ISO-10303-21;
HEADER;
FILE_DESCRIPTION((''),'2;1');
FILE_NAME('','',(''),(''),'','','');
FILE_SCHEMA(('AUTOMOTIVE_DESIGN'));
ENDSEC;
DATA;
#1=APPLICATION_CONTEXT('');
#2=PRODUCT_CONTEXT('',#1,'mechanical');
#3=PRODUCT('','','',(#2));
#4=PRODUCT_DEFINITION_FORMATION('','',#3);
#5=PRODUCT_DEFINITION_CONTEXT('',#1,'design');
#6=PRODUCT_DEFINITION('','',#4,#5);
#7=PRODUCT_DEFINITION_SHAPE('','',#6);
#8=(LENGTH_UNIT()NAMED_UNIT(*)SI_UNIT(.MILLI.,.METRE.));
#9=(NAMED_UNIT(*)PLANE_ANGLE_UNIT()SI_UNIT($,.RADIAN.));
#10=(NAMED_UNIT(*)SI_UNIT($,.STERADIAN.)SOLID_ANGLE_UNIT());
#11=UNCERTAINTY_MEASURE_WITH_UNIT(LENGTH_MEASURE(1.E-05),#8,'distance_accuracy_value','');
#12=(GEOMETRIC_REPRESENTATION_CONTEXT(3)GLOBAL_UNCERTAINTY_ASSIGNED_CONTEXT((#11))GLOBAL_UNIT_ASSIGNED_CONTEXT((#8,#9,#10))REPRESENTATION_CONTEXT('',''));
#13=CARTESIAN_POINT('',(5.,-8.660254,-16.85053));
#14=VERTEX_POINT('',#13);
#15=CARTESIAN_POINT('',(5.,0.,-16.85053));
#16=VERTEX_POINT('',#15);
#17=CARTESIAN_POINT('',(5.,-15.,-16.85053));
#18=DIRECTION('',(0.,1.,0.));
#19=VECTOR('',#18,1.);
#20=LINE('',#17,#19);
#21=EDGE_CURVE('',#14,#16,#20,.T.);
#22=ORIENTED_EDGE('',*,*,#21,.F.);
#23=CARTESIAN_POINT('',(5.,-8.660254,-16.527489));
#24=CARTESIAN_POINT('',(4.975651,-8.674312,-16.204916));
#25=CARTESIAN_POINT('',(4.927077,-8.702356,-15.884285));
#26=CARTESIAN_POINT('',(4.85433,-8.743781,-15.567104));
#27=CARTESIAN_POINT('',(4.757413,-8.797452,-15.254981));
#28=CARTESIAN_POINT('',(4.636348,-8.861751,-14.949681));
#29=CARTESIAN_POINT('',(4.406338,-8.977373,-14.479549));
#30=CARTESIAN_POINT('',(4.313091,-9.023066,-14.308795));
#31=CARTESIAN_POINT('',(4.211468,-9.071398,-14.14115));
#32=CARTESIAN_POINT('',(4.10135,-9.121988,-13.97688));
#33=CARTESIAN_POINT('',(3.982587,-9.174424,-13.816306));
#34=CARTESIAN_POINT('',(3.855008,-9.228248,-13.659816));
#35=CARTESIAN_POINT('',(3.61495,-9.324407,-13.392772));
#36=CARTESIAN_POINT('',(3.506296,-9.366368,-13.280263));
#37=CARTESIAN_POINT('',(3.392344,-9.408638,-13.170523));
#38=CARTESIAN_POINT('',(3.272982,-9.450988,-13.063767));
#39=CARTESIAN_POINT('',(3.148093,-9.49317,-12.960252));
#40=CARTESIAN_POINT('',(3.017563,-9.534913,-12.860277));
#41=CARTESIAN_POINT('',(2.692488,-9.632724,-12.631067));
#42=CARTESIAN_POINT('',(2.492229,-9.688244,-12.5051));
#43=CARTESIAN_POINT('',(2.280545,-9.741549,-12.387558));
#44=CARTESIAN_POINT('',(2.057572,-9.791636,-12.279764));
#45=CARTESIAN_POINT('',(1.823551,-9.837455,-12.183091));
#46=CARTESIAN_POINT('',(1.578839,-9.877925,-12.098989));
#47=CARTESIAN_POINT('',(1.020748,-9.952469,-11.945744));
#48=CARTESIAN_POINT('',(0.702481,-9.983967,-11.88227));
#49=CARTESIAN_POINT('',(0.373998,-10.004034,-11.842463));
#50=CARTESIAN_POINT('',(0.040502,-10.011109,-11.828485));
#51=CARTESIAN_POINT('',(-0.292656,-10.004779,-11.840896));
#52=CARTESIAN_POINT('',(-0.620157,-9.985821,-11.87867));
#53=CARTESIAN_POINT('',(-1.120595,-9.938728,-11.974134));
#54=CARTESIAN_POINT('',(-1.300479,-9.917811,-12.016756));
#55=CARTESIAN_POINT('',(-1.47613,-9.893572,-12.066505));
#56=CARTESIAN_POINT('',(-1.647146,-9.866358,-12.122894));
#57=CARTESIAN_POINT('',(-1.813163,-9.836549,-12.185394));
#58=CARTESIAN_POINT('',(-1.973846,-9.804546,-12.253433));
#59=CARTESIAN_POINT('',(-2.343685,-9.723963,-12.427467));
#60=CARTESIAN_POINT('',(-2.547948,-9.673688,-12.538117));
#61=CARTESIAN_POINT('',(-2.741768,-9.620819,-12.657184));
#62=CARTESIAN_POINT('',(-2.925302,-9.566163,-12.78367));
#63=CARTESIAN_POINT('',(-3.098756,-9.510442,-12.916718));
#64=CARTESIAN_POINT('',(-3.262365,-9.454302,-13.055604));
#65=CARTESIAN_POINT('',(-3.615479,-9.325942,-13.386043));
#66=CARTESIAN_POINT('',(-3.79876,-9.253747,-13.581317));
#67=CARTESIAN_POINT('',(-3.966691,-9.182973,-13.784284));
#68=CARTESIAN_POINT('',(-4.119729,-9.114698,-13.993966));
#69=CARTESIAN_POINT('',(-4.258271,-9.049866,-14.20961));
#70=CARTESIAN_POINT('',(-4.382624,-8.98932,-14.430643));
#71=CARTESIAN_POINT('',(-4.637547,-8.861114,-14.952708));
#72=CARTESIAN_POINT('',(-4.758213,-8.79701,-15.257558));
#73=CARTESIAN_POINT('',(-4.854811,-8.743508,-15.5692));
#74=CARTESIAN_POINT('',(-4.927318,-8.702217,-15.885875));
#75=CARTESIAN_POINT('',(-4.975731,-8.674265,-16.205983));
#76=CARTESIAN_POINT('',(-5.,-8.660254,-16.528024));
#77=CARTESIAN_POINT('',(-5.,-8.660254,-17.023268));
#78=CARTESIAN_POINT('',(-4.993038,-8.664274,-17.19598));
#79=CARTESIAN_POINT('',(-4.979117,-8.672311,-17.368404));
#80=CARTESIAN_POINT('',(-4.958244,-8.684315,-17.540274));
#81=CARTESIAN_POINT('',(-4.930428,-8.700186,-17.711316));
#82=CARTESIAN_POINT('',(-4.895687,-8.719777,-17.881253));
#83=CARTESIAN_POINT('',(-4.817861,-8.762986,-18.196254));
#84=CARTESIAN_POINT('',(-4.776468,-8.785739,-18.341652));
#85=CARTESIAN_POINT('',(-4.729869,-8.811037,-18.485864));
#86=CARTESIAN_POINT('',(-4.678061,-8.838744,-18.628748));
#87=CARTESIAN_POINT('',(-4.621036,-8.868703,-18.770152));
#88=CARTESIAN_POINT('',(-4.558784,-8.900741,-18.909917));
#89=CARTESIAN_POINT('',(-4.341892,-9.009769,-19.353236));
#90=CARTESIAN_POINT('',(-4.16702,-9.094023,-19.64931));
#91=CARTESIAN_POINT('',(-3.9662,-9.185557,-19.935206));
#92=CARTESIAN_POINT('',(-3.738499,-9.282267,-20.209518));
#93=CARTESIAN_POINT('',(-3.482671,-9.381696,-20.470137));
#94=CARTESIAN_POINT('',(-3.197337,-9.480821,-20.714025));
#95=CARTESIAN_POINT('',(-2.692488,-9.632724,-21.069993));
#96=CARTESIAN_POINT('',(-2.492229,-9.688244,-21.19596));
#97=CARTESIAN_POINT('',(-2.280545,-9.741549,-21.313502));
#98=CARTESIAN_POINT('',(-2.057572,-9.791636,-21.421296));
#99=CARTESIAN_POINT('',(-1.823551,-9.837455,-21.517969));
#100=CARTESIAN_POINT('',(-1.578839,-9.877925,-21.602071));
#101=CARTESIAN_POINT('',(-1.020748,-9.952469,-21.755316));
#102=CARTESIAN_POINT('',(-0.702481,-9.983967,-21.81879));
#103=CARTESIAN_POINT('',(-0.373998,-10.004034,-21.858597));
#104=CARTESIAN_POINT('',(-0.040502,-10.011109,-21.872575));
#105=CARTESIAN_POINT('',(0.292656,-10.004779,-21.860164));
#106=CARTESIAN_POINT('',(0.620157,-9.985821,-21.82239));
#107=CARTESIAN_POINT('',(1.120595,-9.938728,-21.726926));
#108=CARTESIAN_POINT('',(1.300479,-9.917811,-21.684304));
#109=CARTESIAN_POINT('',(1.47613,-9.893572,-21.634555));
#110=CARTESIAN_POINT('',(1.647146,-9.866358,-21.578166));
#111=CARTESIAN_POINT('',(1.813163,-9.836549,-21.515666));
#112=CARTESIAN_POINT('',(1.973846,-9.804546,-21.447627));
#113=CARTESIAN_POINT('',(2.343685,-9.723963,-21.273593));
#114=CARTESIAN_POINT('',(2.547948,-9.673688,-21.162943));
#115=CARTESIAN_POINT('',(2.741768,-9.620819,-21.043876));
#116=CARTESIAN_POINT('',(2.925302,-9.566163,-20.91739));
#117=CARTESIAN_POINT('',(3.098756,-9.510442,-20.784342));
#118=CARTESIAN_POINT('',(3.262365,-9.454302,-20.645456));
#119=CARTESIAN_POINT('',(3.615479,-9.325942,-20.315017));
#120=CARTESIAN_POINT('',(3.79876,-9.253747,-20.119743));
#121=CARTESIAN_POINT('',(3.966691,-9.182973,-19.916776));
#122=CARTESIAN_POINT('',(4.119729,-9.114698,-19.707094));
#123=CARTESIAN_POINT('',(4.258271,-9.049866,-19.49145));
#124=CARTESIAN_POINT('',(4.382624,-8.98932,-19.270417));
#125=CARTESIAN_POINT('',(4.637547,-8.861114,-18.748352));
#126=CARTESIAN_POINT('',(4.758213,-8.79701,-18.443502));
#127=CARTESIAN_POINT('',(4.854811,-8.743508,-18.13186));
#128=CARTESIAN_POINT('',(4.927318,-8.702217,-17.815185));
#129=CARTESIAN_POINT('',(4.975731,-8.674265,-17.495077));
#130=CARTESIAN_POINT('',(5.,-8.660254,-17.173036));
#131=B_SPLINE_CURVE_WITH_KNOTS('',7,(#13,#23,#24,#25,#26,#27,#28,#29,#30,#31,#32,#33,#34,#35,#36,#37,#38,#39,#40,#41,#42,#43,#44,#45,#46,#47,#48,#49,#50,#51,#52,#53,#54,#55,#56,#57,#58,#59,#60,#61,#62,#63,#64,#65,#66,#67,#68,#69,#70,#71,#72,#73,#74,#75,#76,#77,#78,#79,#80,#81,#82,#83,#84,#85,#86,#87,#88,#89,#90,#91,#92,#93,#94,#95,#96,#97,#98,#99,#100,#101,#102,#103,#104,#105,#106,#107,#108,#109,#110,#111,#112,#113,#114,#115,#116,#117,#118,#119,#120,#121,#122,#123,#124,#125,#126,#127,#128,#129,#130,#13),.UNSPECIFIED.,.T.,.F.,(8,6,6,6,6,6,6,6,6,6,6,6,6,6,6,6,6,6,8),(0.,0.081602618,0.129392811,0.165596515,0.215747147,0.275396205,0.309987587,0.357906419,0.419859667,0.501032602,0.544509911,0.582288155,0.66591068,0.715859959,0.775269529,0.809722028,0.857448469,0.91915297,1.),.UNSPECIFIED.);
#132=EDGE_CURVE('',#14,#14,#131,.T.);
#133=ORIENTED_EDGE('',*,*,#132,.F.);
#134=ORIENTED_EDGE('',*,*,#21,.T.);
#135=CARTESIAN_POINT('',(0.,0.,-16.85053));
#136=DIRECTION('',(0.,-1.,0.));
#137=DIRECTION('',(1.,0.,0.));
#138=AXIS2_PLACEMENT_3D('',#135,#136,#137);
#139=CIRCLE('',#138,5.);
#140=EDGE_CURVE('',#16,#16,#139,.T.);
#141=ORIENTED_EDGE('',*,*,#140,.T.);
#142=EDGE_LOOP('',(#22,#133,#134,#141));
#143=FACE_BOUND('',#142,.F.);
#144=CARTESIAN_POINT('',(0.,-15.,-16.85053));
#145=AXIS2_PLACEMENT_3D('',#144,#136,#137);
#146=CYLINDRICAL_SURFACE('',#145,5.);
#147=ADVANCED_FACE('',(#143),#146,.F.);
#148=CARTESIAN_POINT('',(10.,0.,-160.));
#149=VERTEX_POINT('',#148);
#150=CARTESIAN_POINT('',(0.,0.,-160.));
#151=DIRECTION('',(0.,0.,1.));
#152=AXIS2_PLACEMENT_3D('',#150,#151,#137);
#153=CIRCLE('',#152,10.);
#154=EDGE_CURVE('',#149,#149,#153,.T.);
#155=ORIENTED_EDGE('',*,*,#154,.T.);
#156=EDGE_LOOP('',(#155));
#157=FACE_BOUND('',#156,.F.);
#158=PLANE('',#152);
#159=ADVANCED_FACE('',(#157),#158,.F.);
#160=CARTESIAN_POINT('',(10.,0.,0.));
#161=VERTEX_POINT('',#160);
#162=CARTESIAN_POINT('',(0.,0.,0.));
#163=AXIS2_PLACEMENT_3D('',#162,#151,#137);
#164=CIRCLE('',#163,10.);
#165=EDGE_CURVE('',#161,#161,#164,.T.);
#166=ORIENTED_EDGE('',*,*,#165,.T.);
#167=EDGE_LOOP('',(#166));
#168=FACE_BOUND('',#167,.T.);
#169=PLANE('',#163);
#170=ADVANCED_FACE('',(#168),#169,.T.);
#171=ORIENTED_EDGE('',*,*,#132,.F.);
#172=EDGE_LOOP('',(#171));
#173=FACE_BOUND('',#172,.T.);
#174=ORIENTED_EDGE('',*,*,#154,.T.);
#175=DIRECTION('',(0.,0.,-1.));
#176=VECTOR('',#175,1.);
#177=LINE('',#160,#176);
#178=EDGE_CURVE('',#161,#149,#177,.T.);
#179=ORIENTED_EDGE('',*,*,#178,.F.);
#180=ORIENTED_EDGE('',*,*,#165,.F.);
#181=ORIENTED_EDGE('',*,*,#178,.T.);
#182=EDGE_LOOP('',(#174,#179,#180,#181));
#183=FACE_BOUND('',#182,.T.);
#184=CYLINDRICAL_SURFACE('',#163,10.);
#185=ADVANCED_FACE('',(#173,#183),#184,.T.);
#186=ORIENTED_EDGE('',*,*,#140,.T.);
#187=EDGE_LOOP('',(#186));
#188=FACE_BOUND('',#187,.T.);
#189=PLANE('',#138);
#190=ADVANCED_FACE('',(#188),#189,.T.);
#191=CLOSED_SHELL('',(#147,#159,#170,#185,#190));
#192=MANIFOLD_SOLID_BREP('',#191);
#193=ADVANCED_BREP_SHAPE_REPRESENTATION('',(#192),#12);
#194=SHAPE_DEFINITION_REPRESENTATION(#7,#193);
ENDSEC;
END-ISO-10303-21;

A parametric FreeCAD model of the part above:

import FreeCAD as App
import Part
import Sketcher
from FreeCAD import Vector
Q = App.Units.Quantity

doc = App.newDocument("Part")
body = doc.addObject("PartDesign::Body", "Body")

# Sketch on XY plane
sketch1 = body.newObject("Sketcher::SketchObject", "Sketch")
sketch1.AttachmentSupport = (doc.getObject("XY_Plane"), [""])
sketch1.MapMode = "FlatFace"
sketch1.addGeometry(Part.Circle(Vector(0, 0, 0), Vector(0, 0, 1), 10), False)
sketch1.addConstraint(Sketcher.Constraint("Coincident", 0, 3, -1, 1))
sketch1.addConstraint(Sketcher.Constraint("Diameter", 0, Q("20 mm")))
pad1 = body.newObject("PartDesign::Pad", "Pad")
pad1.Profile = sketch1
pad1.Length = 160
pad1.Reversed = True

# Sketch on XZ plane
sketch2 = body.newObject("Sketcher::SketchObject", "Sketch001")
sketch2.AttachmentSupport = (doc.getObject("XZ_Plane"), [""])
sketch2.MapMode = "FlatFace"
sketch2.AttachmentOffset = App.Placement(Vector(0, 0, 15), App.Rotation())
sketch2.addGeometry(Part.Circle(Vector(0, -17, 0), Vector(0, 0, 1), 5), False)
sketch2.addConstraint(Sketcher.Constraint("PointOnObject", 0, 3, -2))
sketch2.addConstraint(Sketcher.Constraint("Diameter", 0, Q("10 mm")))
sketch2.addConstraint(Sketcher.Constraint("DistanceY", 0, 3, -1, 1, Q("16.85053 mm")))
pocket1 = body.newObject("PartDesign::Pocket", "Pocket")
pocket1.Profile = sketch2
pocket1.Length = 15

doc.recompute()
